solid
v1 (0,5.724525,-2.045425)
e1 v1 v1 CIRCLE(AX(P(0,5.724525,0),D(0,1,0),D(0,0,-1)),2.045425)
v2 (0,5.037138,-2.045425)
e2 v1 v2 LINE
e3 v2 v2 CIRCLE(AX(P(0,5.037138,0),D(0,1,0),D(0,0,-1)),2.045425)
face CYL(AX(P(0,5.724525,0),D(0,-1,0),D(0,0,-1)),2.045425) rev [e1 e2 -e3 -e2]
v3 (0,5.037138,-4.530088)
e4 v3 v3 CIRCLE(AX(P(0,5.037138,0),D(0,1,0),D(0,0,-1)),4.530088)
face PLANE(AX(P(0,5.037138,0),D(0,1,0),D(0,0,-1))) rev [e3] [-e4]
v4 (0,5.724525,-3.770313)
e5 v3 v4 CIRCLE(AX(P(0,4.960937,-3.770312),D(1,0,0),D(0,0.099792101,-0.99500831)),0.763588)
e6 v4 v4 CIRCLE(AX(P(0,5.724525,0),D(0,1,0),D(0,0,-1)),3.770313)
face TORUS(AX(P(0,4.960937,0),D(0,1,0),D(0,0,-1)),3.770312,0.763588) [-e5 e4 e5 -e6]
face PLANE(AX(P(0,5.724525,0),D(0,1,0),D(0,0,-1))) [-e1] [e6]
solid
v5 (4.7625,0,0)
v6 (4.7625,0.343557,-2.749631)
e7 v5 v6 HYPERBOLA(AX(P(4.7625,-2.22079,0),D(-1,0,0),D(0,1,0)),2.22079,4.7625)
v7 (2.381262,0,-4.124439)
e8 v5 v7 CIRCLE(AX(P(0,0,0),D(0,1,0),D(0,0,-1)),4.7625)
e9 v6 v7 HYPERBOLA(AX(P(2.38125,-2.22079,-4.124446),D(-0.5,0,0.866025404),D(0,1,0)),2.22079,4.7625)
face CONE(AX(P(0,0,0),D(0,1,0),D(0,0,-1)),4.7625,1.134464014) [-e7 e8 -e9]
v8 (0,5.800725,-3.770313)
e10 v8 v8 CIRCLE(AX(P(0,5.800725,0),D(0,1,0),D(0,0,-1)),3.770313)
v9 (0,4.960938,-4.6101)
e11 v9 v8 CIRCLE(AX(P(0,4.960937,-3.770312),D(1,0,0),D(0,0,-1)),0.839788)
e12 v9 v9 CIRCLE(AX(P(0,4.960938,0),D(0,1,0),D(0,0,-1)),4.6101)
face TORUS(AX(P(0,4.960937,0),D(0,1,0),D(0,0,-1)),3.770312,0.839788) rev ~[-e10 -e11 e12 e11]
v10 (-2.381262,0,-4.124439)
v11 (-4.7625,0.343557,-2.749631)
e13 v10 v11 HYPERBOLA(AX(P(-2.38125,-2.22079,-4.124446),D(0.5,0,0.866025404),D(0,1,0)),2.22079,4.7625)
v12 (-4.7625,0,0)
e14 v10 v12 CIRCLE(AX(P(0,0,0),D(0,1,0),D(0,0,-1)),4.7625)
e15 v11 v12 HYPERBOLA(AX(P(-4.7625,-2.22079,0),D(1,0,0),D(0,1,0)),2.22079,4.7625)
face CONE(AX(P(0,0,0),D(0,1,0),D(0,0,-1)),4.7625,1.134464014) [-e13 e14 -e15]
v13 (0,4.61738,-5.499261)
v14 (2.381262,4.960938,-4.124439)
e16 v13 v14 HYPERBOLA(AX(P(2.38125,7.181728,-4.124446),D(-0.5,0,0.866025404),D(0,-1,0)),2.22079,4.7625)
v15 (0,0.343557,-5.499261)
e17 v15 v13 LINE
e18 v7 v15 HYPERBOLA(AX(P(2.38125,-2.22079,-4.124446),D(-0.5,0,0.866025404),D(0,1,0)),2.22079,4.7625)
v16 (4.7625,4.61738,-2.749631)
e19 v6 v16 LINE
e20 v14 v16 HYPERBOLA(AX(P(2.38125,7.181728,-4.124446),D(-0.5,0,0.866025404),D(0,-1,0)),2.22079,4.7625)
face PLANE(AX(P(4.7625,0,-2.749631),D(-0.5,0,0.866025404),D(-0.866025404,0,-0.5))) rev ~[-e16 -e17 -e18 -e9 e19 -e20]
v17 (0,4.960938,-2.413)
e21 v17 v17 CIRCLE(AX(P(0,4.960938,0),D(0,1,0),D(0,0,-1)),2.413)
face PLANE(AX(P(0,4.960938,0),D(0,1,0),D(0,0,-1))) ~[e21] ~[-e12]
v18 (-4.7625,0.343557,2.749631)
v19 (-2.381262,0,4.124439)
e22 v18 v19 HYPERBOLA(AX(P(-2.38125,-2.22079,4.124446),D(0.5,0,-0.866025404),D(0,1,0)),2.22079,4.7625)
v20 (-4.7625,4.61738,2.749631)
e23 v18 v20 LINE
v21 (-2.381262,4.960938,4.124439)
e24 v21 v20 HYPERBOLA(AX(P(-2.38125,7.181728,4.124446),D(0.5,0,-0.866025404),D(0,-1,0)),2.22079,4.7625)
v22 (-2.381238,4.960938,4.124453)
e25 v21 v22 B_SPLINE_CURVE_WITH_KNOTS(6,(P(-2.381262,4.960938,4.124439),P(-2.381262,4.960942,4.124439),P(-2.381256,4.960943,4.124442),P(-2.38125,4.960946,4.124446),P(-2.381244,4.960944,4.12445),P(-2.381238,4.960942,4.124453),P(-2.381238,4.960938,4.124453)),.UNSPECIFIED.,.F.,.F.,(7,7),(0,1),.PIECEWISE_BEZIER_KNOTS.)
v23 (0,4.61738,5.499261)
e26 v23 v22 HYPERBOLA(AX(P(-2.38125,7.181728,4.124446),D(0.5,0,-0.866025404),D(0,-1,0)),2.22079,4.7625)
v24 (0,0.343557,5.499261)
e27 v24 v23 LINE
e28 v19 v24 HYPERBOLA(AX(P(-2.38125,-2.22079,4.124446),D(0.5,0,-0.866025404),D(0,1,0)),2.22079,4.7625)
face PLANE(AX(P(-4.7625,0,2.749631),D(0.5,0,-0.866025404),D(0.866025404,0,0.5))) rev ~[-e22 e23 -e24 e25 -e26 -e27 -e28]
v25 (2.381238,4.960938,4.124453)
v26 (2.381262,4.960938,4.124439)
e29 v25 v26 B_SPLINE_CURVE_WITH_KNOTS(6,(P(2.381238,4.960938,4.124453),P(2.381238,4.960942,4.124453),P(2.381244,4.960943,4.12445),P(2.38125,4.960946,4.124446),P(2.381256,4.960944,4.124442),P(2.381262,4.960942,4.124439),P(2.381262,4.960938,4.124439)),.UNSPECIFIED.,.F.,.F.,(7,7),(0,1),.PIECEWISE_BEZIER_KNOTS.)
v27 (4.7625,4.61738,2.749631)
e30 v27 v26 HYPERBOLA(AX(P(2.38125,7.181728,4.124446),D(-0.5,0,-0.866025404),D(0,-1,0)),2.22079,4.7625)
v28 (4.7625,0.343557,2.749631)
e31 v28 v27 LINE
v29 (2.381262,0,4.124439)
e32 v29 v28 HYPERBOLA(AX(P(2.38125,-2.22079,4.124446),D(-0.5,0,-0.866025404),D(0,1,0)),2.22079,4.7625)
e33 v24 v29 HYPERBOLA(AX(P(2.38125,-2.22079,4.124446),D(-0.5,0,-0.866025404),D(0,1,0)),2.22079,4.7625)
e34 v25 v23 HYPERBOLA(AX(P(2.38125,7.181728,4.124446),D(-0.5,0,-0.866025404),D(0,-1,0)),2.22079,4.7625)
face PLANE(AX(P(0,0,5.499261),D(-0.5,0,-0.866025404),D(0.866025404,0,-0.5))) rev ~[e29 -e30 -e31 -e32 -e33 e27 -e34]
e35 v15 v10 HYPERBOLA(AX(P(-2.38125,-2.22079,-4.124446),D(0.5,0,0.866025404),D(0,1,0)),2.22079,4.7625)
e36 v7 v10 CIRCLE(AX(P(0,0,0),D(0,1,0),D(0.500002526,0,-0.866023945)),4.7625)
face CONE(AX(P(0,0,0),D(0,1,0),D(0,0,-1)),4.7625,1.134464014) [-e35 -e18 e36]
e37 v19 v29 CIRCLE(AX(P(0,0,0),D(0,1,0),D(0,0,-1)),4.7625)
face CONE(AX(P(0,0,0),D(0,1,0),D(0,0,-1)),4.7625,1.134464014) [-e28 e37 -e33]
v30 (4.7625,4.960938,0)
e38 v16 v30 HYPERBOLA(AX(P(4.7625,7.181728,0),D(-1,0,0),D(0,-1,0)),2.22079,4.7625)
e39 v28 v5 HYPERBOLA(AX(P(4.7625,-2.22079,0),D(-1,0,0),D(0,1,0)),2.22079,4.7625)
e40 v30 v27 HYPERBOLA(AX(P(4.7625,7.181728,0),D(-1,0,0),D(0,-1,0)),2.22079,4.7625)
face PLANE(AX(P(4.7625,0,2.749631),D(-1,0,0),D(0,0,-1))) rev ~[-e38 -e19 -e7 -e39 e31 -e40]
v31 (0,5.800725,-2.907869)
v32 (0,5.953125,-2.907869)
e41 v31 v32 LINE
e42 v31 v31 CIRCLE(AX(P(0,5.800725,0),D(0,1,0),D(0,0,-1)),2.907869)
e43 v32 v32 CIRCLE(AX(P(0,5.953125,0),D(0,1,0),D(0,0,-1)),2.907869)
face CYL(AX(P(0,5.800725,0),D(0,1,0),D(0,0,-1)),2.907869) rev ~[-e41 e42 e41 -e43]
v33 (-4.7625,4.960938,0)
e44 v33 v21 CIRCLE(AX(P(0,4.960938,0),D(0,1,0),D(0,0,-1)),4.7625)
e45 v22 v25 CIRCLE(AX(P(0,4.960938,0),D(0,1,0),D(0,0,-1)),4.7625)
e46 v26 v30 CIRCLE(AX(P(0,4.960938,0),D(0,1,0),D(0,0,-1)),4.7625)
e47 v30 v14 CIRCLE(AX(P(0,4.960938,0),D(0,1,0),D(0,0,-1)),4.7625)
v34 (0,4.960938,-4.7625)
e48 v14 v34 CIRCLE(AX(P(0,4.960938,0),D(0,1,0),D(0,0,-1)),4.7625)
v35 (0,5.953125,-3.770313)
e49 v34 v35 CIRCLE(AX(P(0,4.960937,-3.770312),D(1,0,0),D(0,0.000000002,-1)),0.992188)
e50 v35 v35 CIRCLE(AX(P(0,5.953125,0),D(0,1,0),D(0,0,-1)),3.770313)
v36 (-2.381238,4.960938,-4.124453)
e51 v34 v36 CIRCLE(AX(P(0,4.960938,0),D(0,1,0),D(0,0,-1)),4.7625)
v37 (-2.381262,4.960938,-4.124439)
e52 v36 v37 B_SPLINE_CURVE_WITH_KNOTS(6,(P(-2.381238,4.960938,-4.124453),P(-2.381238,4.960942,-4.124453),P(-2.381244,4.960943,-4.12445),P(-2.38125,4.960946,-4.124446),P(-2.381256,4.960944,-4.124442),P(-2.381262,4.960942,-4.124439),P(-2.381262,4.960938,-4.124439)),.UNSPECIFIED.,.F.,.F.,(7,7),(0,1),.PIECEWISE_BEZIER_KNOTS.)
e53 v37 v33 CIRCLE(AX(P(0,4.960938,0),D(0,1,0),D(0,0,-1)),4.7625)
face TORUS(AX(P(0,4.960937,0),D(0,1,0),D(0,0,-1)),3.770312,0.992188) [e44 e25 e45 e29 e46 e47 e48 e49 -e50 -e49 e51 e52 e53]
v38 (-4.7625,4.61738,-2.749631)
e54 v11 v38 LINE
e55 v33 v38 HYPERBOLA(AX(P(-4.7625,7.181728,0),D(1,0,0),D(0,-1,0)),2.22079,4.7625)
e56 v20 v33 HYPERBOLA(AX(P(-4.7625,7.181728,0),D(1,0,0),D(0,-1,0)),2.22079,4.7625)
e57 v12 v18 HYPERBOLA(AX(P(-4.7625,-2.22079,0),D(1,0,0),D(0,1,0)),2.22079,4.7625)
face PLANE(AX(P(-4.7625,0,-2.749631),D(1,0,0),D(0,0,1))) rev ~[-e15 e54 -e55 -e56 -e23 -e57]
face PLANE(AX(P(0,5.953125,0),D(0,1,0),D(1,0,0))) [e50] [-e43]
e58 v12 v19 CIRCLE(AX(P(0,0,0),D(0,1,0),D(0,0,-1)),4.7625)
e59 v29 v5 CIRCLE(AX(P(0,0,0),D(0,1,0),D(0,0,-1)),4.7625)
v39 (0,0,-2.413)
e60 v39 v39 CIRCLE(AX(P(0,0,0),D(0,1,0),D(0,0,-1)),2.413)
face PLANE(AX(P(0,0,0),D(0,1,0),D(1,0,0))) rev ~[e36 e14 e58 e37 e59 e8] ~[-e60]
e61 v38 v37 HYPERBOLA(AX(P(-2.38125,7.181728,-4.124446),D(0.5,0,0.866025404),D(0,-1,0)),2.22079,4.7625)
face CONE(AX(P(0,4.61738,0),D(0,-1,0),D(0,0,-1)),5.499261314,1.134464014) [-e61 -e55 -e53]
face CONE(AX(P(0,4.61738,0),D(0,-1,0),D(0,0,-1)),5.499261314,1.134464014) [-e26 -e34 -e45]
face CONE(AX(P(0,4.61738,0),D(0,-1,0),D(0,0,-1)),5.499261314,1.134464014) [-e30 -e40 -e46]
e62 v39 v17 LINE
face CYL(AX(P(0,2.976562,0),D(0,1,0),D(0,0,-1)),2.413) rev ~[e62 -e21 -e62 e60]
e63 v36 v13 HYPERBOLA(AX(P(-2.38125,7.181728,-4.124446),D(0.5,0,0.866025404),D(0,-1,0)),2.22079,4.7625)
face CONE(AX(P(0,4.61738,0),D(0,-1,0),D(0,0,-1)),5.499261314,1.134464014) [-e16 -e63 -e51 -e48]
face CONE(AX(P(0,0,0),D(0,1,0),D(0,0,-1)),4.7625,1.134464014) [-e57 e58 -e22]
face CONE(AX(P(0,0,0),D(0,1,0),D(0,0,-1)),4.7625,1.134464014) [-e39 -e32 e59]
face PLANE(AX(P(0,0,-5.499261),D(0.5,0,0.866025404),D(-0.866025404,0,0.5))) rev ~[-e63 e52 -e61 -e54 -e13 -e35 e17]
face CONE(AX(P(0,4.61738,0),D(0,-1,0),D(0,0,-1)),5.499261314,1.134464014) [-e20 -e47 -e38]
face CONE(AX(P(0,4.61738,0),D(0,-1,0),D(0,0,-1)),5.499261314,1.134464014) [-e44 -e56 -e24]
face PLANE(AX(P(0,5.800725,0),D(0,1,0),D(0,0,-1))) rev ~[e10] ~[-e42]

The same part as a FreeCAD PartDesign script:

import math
import FreeCAD as App
import Part
import Sketcher

V = App.Vector
Q = App.Units.Quantity

doc = App.newDocument("Part")
body = doc.addObject("PartDesign::Body", "Body")

sketch1 = doc.addObject("Sketcher::SketchObject", "Sketch")
body.addObject(sketch1)
sketch1.AttachmentSupport = (doc.XZ_Plane, [""])
sketch1.MapMode = "FlatFace"
sketch1.addGeometry([
    Part.LineSegment(V(0, -5, 0), V(-5, -3, 0)),
    Part.LineSegment(V(-5, -3, 0), V(-5, 3, 0)),
    Part.LineSegment(V(-5, 3, 0), V(0, 5, 0)),
    Part.LineSegment(V(0, 5, 0), V(5, 3, 0)),
    Part.LineSegment(V(5, 3, 0), V(5, -3, 0)),
    Part.LineSegment(V(5, -3, 0), V(0, -5, 0)),
], False)
sketch1.addConstraint([
    Sketcher.Constraint("Coincident", 0, 2, 1, 1),
    Sketcher.Constraint("Coincident", 1, 2, 2, 1),
    Sketcher.Constraint("Coincident", 2, 2, 3, 1),
    Sketcher.Constraint("Coincident", 3, 2, 4, 1),
    Sketcher.Constraint("Coincident", 4, 2, 5, 1),
    Sketcher.Constraint("Coincident", 5, 2, 0, 1),
    Sketcher.Constraint("Vertical", 1),
    Sketcher.Constraint("Vertical", 4),
    Sketcher.Constraint("Symmetric", 0, 2, 3, 2, -1, 1),
    Sketcher.Constraint("Symmetric", 2, 2, 5, 2, -1, 1),
    Sketcher.Constraint("PointOnObject", 2, 2, -2),
    Sketcher.Constraint("Parallel", 2, 5),
    Sketcher.Constraint("Horizontal", 1, 2, 3, 2),
    Sketcher.Constraint("Angle", 0, Q("150 deg")),
    Sketcher.Constraint("DistanceX", 0, 2, -1, 1, Q("0.1875 in")),
    Sketcher.Constraint("DistanceY", 1, 1, 1, 2, Q("5.499261 mm")),
])
pad1 = doc.addObject("PartDesign::Pad", "Pad")
body.addObject(pad1)
pad1.Profile = sketch1
pad1.Length = Q("0.234375 in")
pad1.Reversed = True

sketch2 = doc.addObject("Sketcher::SketchObject", "Sketch001")
body.addObject(sketch2)
sketch2.AttachmentSupport = (doc.YZ_Plane, [""])
sketch2.MapMode = "FlatFace"
sketch2.addGeometry([
    Part.LineSegment(V(5.95, -2.41, 0), V(5.95, 0, 0)),
    Part.LineSegment(V(5.95, 0, 0), V(0, 0, 0)),
    Part.LineSegment(V(0, 0, 0), V(0, -2.41, 0)),
    Part.LineSegment(V(0, -2.41, 0), V(0.17, -2.05, 0)),
    Part.LineSegment(V(0.17, -2.05, 0), V(5.78, -2.05, 0)),
    Part.LineSegment(V(5.78, -2.05, 0), V(5.95, -2.41, 0)),
], False)
sketch2.addConstraint([
    Sketcher.Constraint("Coincident", 0, 2, 1, 1),
    Sketcher.Constraint("Coincident", 1, 2, 2, 1),
    Sketcher.Constraint("Coincident", 2, 2, 3, 1),
    Sketcher.Constraint("Coincident", 3, 2, 4, 1),
    Sketcher.Constraint("Coincident", 4, 2, 5, 1),
    Sketcher.Constraint("Coincident", 5, 2, 0, 1),
    Sketcher.Constraint("Vertical", 0),
    Sketcher.Constraint("Horizontal", 1),
    Sketcher.Constraint("Vertical", 2),
    Sketcher.Constraint("Horizontal", 4),
    Sketcher.Constraint("Coincident", 1, 2, -1, 1),
    Sketcher.Constraint("Horizontal", 2, 2, 5, 2),
    Sketcher.Constraint("Equal", 3, 5),
    Sketcher.Constraint("Angle", 3, Q("65 deg")),
    Sketcher.Constraint("DistanceX", 1, 2, 1, 1, Q("0.234375 in")),
    Sketcher.Constraint("DistanceY", 0, 1, 0, 2, Q("0.095 in")),
    Sketcher.Constraint("DistanceX", 4, 1, 4, 2, Q("5.610319 mm")),
])
groove = doc.addObject("PartDesign::Groove", "Groove")
body.addObject(groove)
groove.Profile = sketch2
groove.ReferenceAxis = (sketch2, ["H_Axis"])
groove.Angle = 360
body2 = doc.addObject("PartDesign::Body", "Body001")

sketch3 = doc.addObject("Sketcher::SketchObject", "Sketch002")
body2.addObject(sketch3)
sketch3.AttachmentSupport = (doc.getObject("YZ_Plane001"), [""])
sketch3.MapMode = "FlatFace"
sketch3.addGeometry([
    Part.LineSegment(V(6, 0, 0), V(0, 0, 0)),
    Part.LineSegment(V(0, 0, 0), V(0, -2.4, 0)),
    Part.LineSegment(V(0, -2.4, 0), V(6, -2.4, 0)),
    Part.LineSegment(V(6, -2.4, 0), V(6, 0, 0)),
], False)
sketch3.addConstraint([
    Sketcher.Constraint("Coincident", 0, 2, 1, 1),
    Sketcher.Constraint("Coincident", 1, 2, 2, 1),
    Sketcher.Constraint("Coincident", 2, 2, 3, 1),
    Sketcher.Constraint("Coincident", 3, 2, 0, 1),
    Sketcher.Constraint("Horizontal", 0),
    Sketcher.Constraint("Vertical", 1),
    Sketcher.Constraint("Horizontal", 2),
    Sketcher.Constraint("Vertical", 3),
    Sketcher.Constraint("Coincident", 0, 2, -1, 1),
    Sketcher.Constraint("DistanceX", 0, 2, 0, 1, Q("0.234375 in")),
    Sketcher.Constraint("DistanceY", 1, 2, 1, 1, Q("0.095 in")),
])
revolution = doc.addObject("PartDesign::Revolution", "Revolution")
body2.addObject(revolution)
revolution.Profile = sketch3
revolution.ReferenceAxis = (sketch3, ["H_Axis"])
revolution.Angle = 360
doc.recompute()

boolean = doc.addObject("PartDesign::Boolean", "Boolean")
body.addObject(boolean)
boolean.Type = "Cut"
boolean.addObjects([body2])

sketch4 = doc.addObject("Sketcher::SketchObject", "Sketch003")
body.addObject(sketch4)
sketch4.AttachmentSupport = (doc.YZ_Plane, [""])
sketch4.MapMode = "FlatFace"
sketch4.addGeometry([
    Part.LineSegment(V(0, -4.8, 0), V(0, 0, 0)),
    Part.LineSegment(V(0, 0, 0), V(-1.3, 0, 0)),
    Part.LineSegment(V(-1.3, 0, 0), V(-1.3, -6.8, 0)),
    Part.LineSegment(V(-1.3, -6.8, 0), V(7.2, -6.8, 0)),
    Part.LineSegment(V(7.2, -6.8, 0), V(7.2, -3.8, 0)),
    Part.LineSegment(V(7.2, -3.8, 0), V(6, -3.8, 0)),
    Part.ArcOfCircle(Part.Circle(V(5, -3.8, 0), V(0, 0, 1), 1), math.radians(-90), math.radians(0)),
    Part.LineSegment(V(5, -4.8, 0), V(4.6, -5.5, 0)),
    Part.LineSegment(V(4.6, -5.5, 0), V(0.3, -5.5, 0)),
    Part.LineSegment(V(0.3, -5.5, 0), V(0, -4.8, 0)),
], False)
sketch4.addConstraint([
    Sketcher.Constraint("Coincident", 0, 2, 1, 1),
    Sketcher.Constraint("Coincident", 1, 2, 2, 1),
    Sketcher.Constraint("Coincident", 2, 2, 3, 1),
    Sketcher.Constraint("Coincident", 3, 2, 4, 1),
    Sketcher.Constraint("Coincident", 4, 2, 5, 1),
    Sketcher.Constraint("Coincident", 5, 2, 6, 2),
    Sketcher.Constraint("Coincident", 6, 1, 7, 1),
    Sketcher.Constraint("Coincident", 7, 2, 8, 1),
    Sketcher.Constraint("Coincident", 8, 2, 9, 1),
    Sketcher.Constraint("Coincident", 9, 2, 0, 1),
    Sketcher.Constraint("Vertical", 0),
    Sketcher.Constraint("Horizontal", 1),
    Sketcher.Constraint("Vertical", 2),
    Sketcher.Constraint("Horizontal", 3),
    Sketcher.Constraint("Vertical", 4),
    Sketcher.Constraint("Horizontal", 5),
    Sketcher.Constraint("Horizontal", 8),
    Sketcher.Constraint("Coincident", 0, 2, -1, 1),
    Sketcher.Constraint("Horizontal", 6, 3, 4, 2),
    Sketcher.Constraint("Horizontal", 6, 1, 9, 2),
    Sketcher.Constraint("Equal", 1, 5),
    Sketcher.Constraint("Equal", 7, 9),
    Sketcher.Constraint("Angle", 7, Q("-115 deg")),
    Sketcher.Constraint("DistanceX", 1, 2, 1, 1, Q("0.05 in")),
    Sketcher.Constraint("DistanceY", 0, 1, 0, 2, Q("0.1875 in")),
    Sketcher.Constraint("DistanceY", 3, 2, 7, 2, Q("0.05 in")),
    Sketcher.Constraint("DistanceX", -1, 1, 5, 2, Q("0.234375 in")),
    Sketcher.Constraint("Radius", 6, Q("0.992188 mm")),
    Sketcher.Constraint("DistanceY", 2, 2, 2, 1, Q("6.769261 mm")),
    Sketcher.Constraint("DistanceX", 8, 2, 8, 1, Q("4.273823 mm")),
])
groove2 = doc.addObject("PartDesign::Groove", "Groove001")
body.addObject(groove2)
groove2.Profile = sketch4
groove2.ReferenceAxis = (sketch4, ["H_Axis"])
groove2.Angle = 360

sketch5 = doc.addObject("Sketcher::SketchObject", "Sketch004")
body.addObject(sketch5)
sketch5.AttachmentSupport = (doc.YZ_Plane, [""])
sketch5.MapMode = "FlatFace"
sketch5.addGeometry([
    Part.LineSegment(V(5, 0, 0), V(5, -4.6, 0)),
    Part.ArcOfCircle(Part.Circle(V(5, -3.8, 0), V(0, 0, 1), 0.8), math.radians(-90), math.radians(0)),
    Part.LineSegment(V(5.8, -3.8, 0), V(5.8, -2.9, 0)),
    Part.LineSegment(V(5.8, -2.9, 0), V(7.2, -2.9, 0)),
    Part.LineSegment(V(7.2, -2.9, 0), V(7.2, 0, 0)),
    Part.LineSegment(V(7.2, 0, 0), V(5, 0, 0)),
], False)
sketch5.addConstraint([
    Sketcher.Constraint("Coincident", 0, 2, 1, 1),
    Sketcher.Constraint("Tangent", 1, 2, 2, 1),
    Sketcher.Constraint("Coincident", 2, 2, 3, 1),
    Sketcher.Constraint("Coincident", 3, 2, 4, 1),
    Sketcher.Constraint("Coincident", 4, 2, 5, 1),
    Sketcher.Constraint("Coincident", 5, 2, 0, 1),
    Sketcher.Constraint("Vertical", 0),
    Sketcher.Constraint("Vertical", 2),
    Sketcher.Constraint("Horizontal", 3),
    Sketcher.Constraint("Vertical", 4),
    Sketcher.Constraint("Horizontal", 5),
    Sketcher.Constraint("PointOnObject", 4, 2, -1),
    Sketcher.Constraint("Vertical", 1, 3, 0, 2),
    Sketcher.Constraint("DistanceX", 3, 1, 3, 2, Q("0.056 in")),
    Sketcher.Constraint("DistanceY", 0, 2, 0, 1, Q("0.1815 in")),
    Sketcher.Constraint("Radius", 1, Q("0.839788 mm")),
    Sketcher.Constraint("DistanceY", 4, 1, 4, 2, Q("2.907869 mm")),
    Sketcher.Constraint("DistanceX", -1, 1, 1, 3, Q("4.960938 mm")),
])
groove3 = doc.addObject("PartDesign::Groove", "Groove002")
body.addObject(groove3)
groove3.Profile = sketch5
groove3.ReferenceAxis = (sketch5, ["H_Axis"])
groove3.Angle = 360
body3 = doc.addObject("PartDesign::Body", "Body002")

sketch6 = doc.addObject("Sketcher::SketchObject", "Sketch005")
body3.addObject(sketch6)
sketch6.AttachmentSupport = (doc.getObject("YZ_Plane002"), [""])
sketch6.MapMode = "FlatFace"
sketch6.addGeometry([
    Part.LineSegment(V(5, -2, 0), V(5, -4.5, 0)),
    Part.ArcOfCircle(Part.Circle(V(5, -3.8, 0), V(0, 0, 1), 0.8), math.radians(-84), math.radians(0)),
    Part.LineSegment(V(5.7, -3.8, 0), V(5.7, -2, 0)),
    Part.LineSegment(V(5.7, -2, 0), V(5, -2, 0)),
], False)
sketch6.addConstraint([
    Sketcher.Constraint("Coincident", 0, 2, 1, 1),
    Sketcher.Constraint("Tangent", 1, 2, 2, 1),
    Sketcher.Constraint("Coincident", 2, 2, 3, 1),
    Sketcher.Constraint("Coincident", 3, 2, 0, 1),
    Sketcher.Constraint("Vertical", 0),
    Sketcher.Constraint("Vertical", 2),
    Sketcher.Constraint("Horizontal", 3),
    Sketcher.Constraint("DistanceX", 1, 3, 0, 2, Q("0.003 in")),
    Sketcher.Constraint("Radius", 1, Q("0.763588 mm")),
    Sketcher.Constraint("DistanceY", 0, 2, 0, 1, Q("2.484664 mm")),
    Sketcher.Constraint("DistanceY", 0, 2, -1, 1, Q("4.530088 mm")),
    Sketcher.Constraint("DistanceX", -1, 1, 1, 3, Q("4.960937 mm")),
])
revolution2 = doc.addObject("PartDesign::Revolution", "Revolution001")
body3.addObject(revolution2)
revolution2.Profile = sketch6
revolution2.ReferenceAxis = (sketch6, ["H_Axis"])
revolution2.Angle = 360

doc.recompute()
